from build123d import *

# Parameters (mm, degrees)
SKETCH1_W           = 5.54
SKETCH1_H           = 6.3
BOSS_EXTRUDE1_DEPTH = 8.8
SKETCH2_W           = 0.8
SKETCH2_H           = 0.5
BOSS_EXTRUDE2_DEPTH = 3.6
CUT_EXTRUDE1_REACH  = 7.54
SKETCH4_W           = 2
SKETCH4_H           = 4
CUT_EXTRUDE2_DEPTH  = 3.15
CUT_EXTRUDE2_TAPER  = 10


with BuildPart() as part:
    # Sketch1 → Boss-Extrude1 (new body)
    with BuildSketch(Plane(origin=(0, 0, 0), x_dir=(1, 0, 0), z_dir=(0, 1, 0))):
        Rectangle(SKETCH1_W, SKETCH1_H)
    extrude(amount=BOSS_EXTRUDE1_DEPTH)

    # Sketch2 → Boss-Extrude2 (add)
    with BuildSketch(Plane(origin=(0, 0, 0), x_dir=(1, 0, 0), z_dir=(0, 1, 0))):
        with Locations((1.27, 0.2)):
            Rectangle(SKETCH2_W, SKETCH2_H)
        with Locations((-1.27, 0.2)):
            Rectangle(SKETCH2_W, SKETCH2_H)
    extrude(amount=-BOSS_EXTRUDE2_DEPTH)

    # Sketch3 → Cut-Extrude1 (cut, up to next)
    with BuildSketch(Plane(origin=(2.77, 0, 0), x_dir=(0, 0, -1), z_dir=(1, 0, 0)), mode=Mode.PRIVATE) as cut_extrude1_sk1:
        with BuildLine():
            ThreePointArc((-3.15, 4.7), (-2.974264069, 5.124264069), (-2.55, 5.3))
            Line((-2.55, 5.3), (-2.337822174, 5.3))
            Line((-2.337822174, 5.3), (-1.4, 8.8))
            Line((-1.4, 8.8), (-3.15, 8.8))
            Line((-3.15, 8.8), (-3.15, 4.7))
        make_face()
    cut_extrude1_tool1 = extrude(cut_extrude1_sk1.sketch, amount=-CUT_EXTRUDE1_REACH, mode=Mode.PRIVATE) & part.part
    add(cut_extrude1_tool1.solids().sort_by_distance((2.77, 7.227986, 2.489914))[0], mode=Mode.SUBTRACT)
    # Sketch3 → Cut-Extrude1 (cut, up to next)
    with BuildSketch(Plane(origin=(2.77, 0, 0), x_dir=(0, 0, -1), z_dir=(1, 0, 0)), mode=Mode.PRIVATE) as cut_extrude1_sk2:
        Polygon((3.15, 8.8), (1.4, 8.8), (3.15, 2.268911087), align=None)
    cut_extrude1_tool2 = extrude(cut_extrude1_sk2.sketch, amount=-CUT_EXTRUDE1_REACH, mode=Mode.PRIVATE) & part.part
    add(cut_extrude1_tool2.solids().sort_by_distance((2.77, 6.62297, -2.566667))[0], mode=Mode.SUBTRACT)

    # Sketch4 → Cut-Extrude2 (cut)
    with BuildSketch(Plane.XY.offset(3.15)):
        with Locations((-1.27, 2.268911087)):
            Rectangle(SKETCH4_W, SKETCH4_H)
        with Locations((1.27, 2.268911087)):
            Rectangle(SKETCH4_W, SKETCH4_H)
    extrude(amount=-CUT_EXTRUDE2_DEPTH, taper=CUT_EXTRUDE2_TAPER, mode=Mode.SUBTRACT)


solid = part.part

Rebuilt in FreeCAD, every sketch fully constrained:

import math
import FreeCAD as App
import Part
import Sketcher

V = App.Vector
Q = App.Units.Quantity


def add_polygon(sketch, points):
    """Adds a closed chain of lines whose ends are joined by coincident constraints."""
    first, n = sketch.GeometryCount, len(points)
    for a, b in zip(points, points[1:] + points[:1]):
        sketch.addGeometry(Part.LineSegment(App.Vector(*a, 0), App.Vector(*b, 0)), False)
    for i in range(n):
        sketch.addConstraint(Sketcher.Constraint("Coincident", first + i, 2, first + (i + 1) % n, 1))

doc = App.newDocument("Part")
params = doc.addObject("Spreadsheet::Sheet", "Params")
for row, (alias, value) in enumerate([
    ("sketch1_height", "6.3 mm"),
    ("sketch1_width", "5.54 mm"),
    ("pad1_length", "8.8 mm"),
    ("sketch2_width", "0.8 mm"),
    ("sketch2_height", "0.5 mm"),
    ("pad2_length", "3.6 mm"),
    ("sketch3_radius", "0.6 mm"),
    ("sketch3_width", "4.1 mm"),
    ("sketch3_height", "1.75 mm"),
    ("sketch4_height", "1.75 mm"),
    ("sketch5_width", "2 mm"),
    ("sketch5_height", "4 mm"),
    ("pocket3_length", "3.15 mm"),
    ("pocket3_taper", "-10 deg"),
], start=1):
    params.set(f"A{row}", alias)
    params.set(f"B{row}", "=" + value)
    params.setAlias(f"B{row}", alias)

body = doc.addObject("PartDesign::Body", "Body")

# Sketch on XZ plane
sketch1 = body.newObject("Sketcher::SketchObject", "Sketch")
sketch1.AttachmentSupport = (doc.getObject("XZ_Plane"), [""])
sketch1.MapMode = "FlatFace"
add_polygon(sketch1, [(-3, -3), (-3, 3), (3, 3), (3, -3)])  # lines 0-3
sketch1.addConstraint(Sketcher.Constraint("Vertical", 0))
sketch1.addConstraint(Sketcher.Constraint("Horizontal", 1))
sketch1.addConstraint(Sketcher.Constraint("Vertical", 2))
sketch1.addConstraint(Sketcher.Constraint("Horizontal", 3))
sketch1.addConstraint(Sketcher.Constraint("Symmetric", 0, 2, 2, 2, -1, 1))
sketch1.addConstraint(Sketcher.Constraint("DistanceY", 0, 1, 0, 2, Q("6.3 mm")))
sketch1.addConstraint(Sketcher.Constraint("DistanceX", 1, 1, 1, 2, Q("5.54 mm")))
sketch1.setExpression("Constraints[9]", "Params.sketch1_height")
sketch1.setExpression("Constraints[10]", "Params.sketch1_width")
pad1 = body.newObject("PartDesign::Pad", "Pad")
pad1.Profile = sketch1
pad1.setExpression("Length", "Params.pad1_length")
pad1.Reversed = True

# Sketch on XZ plane
sketch2 = body.newObject("Sketcher::SketchObject", "Sketch001")
sketch2.AttachmentSupport = (doc.getObject("XZ_Plane"), [""])
sketch2.MapMode = "FlatFace"
add_polygon(sketch2, [(0.9, -0.5), (0.9, 0.1), (1.7, 0.1), (1.7, -0.5)])  # lines 0-3
add_polygon(sketch2, [(-1.7, -0.5), (-1.7, 0.1), (-0.9, 0.1), (-0.9, -0.5)])  # lines 4-7
sketch2.addConstraint(Sketcher.Constraint("Vertical", 0))
sketch2.addConstraint(Sketcher.Constraint("Horizontal", 1))
sketch2.addConstraint(Sketcher.Constraint("Vertical", 2))
sketch2.addConstraint(Sketcher.Constraint("Horizontal", 3))
sketch2.addConstraint(Sketcher.Constraint("Vertical", 4))
sketch2.addConstraint(Sketcher.Constraint("Horizontal", 5))
sketch2.addConstraint(Sketcher.Constraint("Vertical", 6))
sketch2.addConstraint(Sketcher.Constraint("Horizontal", 7))
sketch2.addConstraint(Sketcher.Constraint("Symmetric", 1, 2, 4, 2, -2))
sketch2.addConstraint(Sketcher.Constraint("Symmetric", 3, 2, 6, 2, -2))
sketch2.addConstraint(Sketcher.Constraint("DistanceX", 1, 1, 1, 2, Q("0.8 mm")))
sketch2.addConstraint(Sketcher.Constraint("DistanceY", 0, 1, 0, 2, Q("0.5 mm")))
sketch2.addConstraint(Sketcher.Constraint("DistanceX", -1, 1, 0, 2, Q("0.87 mm")))
sketch2.addConstraint(Sketcher.Constraint("DistanceY", -1, 1, 0, 2, Q("0.05 mm")))
sketch2.setExpression("Constraints[18]", "Params.sketch2_width")
sketch2.setExpression("Constraints[19]", "Params.sketch2_height")
pad2 = body.newObject("PartDesign::Pad", "Pad001")
pad2.Profile = sketch2
pad2.setExpression("Length", "Params.pad2_length")

# Sketch on YZ plane
sketch3 = body.newObject("Sketcher::SketchObject", "Sketch002")
sketch3.AttachmentSupport = (doc.getObject("YZ_Plane"), [""])
sketch3.MapMode = "FlatFace"
sketch3.AttachmentOffset = App.Placement(V(0, 0, 2.77), App.Rotation())
sketch3.addGeometry(Part.ArcOfCircle(Part.Circle(V(4.7, 2.55, 0), V(0, 0, 1), 0.6), math.radians(0), math.radians(90)), False)
sketch3.addGeometry(Part.LineSegment(V(5.3, 2.55, 0), V(5.3, 2.34, 0)), False)
sketch3.addGeometry(Part.LineSegment(V(5.3, 2.34, 0), V(8.8, 1.4, 0)), False)
sketch3.addGeometry(Part.LineSegment(V(8.8, 1.4, 0), V(8.8, 3.15, 0)), False)
sketch3.addGeometry(Part.LineSegment(V(8.8, 3.15, 0), V(4.7, 3.15, 0)), False)
sketch3.addConstraint(Sketcher.Constraint("Tangent", 0, 1, 1, 1))
sketch3.addConstraint(Sketcher.Constraint("Coincident", 1, 2, 2, 1))
sketch3.addConstraint(Sketcher.Constraint("Coincident", 2, 2, 3, 1))
sketch3.addConstraint(Sketcher.Constraint("Coincident", 3, 2, 4, 1))
sketch3.addConstraint(Sketcher.Constraint("Tangent", 4, 2, 0, 2))
sketch3.addConstraint(Sketcher.Constraint("Vertical", 1))
sketch3.addConstraint(Sketcher.Constraint("Vertical", 3))
sketch3.addConstraint(Sketcher.Constraint("Horizontal", 4))
sketch3.addConstraint(Sketcher.Constraint("Radius", 0, Q("0.6 mm")))
sketch3.addConstraint(Sketcher.Constraint("Angle", 2, Q("-15 deg")))
sketch3.addConstraint(Sketcher.Constraint("DistanceX", 4, 2, 4, 1, Q("4.1 mm")))
sketch3.addConstraint(Sketcher.Constraint("DistanceY", 3, 1, 3, 2, Q("1.75 mm")))
sketch3.addConstraint(Sketcher.Constraint("DistanceX", -1, 1, 0, 3, Q("4.7 mm")))
sketch3.addConstraint(Sketcher.Constraint("DistanceY", -1, 1, 2, 2, Q("1.4 mm")))
sketch3.setExpression("Constraints[8]", "Params.sketch3_radius")
sketch3.setExpression("Constraints[10]", "Params.sketch3_width")
sketch3.setExpression("Constraints[11]", "Params.sketch3_height")
pocket1 = body.newObject("PartDesign::Pocket", "Pocket")
pocket1.Profile = sketch3
pocket1.Type = "UpToFirst"

# Sketch on YZ plane
sketch4 = body.newObject("Sketcher::SketchObject", "Sketch003")
sketch4.AttachmentSupport = (doc.getObject("YZ_Plane"), [""])
sketch4.MapMode = "FlatFace"
sketch4.AttachmentOffset = App.Placement(V(0, 0, 2.77), App.Rotation())
add_polygon(sketch4, [(8.8, -3.1), (8.8, -1.4), (2.3, -3.1)])  # lines 0-2
sketch4.addConstraint(Sketcher.Constraint("Vertical", 0))
sketch4.addConstraint(Sketcher.Constraint("Horizontal", 2))
sketch4.addConstraint(Sketcher.Constraint("Angle", 1, Q("-165 deg")))
sketch4.addConstraint(Sketcher.Constraint("DistanceY", 0, 1, 0, 2, Q("1.75 mm")))
sketch4.addConstraint(Sketcher.Constraint("DistanceX", -1, 1, 0, 2, Q("8.8 mm")))
sketch4.addConstraint(Sketcher.Constraint("DistanceY", 0, 2, -1, 1, Q("1.4 mm")))
sketch4.setExpression("Constraints[6]", "Params.sketch4_height")
pocket2 = body.newObject("PartDesign::Pocket", "Pocket001")
pocket2.Profile = sketch4
pocket2.Type = "UpToFirst"

# Sketch on XY plane
sketch5 = body.newObject("Sketcher::SketchObject", "Sketch004")
sketch5.AttachmentSupport = (doc.getObject("XY_Plane"), [""])
sketch5.MapMode = "FlatFace"
sketch5.AttachmentOffset = App.Placement(V(0, 0, 3.15), App.Rotation())
add_polygon(sketch5, [(-2.3, 4.3), (-2.3, 0.3), (-0.3, 0.3), (-0.3, 4.3)])  # lines 0-3
add_polygon(sketch5, [(0.3, 4.3), (0.3, 0.3), (2.3, 0.3), (2.3, 4.3)])  # lines 4-7
sketch5.addConstraint(Sketcher.Constraint("Vertical", 0))
sketch5.addConstraint(Sketcher.Constraint("Horizontal", 1))
sketch5.addConstraint(Sketcher.Constraint("Vertical", 2))
sketch5.addConstraint(Sketcher.Constraint("Horizontal", 3))
sketch5.addConstraint(Sketcher.Constraint("Vertical", 4))
sketch5.addConstraint(Sketcher.Constraint("Horizontal", 5))
sketch5.addConstraint(Sketcher.Constraint("Vertical", 6))
sketch5.addConstraint(Sketcher.Constraint("Horizontal", 7))
sketch5.addConstraint(Sketcher.Constraint("Symmetric", 1, 2, 4, 2, -2))
sketch5.addConstraint(Sketcher.Constraint("Symmetric", 3, 2, 6, 2, -2))
sketch5.addConstraint(Sketcher.Constraint("DistanceX", 1, 1, 1, 2, Q("2 mm")))
sketch5.addConstraint(Sketcher.Constraint("DistanceY", 0, 2, 0, 1, Q("4 mm")))
sketch5.addConstraint(Sketcher.Constraint("DistanceX", 0, 2, -1, 1, Q("2.27 mm")))
sketch5.addConstraint(Sketcher.Constraint("DistanceY", -1, 1, 0, 2, Q("0.268911 mm")))
sketch5.setExpression("Constraints[18]", "Params.sketch5_width")
sketch5.setExpression("Constraints[19]", "Params.sketch5_height")
pocket3 = body.newObject("PartDesign::Pocket", "Pocket002")
pocket3.Profile = sketch5
pocket3.setExpression("Length", "Params.pocket3_length")
pocket3.setExpression("TaperAngle", "Params.pocket3_taper")

doc.recompute()
